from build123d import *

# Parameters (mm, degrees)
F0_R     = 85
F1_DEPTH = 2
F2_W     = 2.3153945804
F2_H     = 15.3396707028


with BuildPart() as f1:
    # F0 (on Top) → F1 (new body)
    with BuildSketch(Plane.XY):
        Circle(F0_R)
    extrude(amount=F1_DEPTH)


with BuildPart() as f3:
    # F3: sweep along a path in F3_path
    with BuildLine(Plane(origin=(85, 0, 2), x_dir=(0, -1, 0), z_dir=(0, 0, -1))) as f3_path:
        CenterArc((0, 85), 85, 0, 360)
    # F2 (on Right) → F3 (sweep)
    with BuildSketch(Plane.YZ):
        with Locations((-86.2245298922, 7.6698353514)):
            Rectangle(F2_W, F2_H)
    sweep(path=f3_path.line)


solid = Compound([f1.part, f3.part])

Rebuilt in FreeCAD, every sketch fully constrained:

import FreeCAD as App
import Part
import Sketcher

V = App.Vector
Q = App.Units.Quantity


def add_polygon(sketch, points):
    """Adds a closed chain of lines whose ends are joined by coincident constraints."""
    first, n = sketch.GeometryCount, len(points)
    for a, b in zip(points, points[1:] + points[:1]):
        sketch.addGeometry(Part.LineSegment(App.Vector(*a, 0), App.Vector(*b, 0)), False)
    for i in range(n):
        sketch.addConstraint(Sketcher.Constraint("Coincident", first + i, 2, first + (i + 1) % n, 1))

doc = App.newDocument("Part")
body = doc.addObject("PartDesign::Body", "Body")

sketch1 = body.newObject("Sketcher::SketchObject", "Sketch")
sketch1.AttachmentSupport = (doc.getObject("XY_Plane"), [""])
sketch1.MapMode = "FlatFace"
sketch1.addGeometry(Part.Circle(V(0, 0, 0), V(0, 0, 1), 85), False)
sketch1.addConstraint([
    Sketcher.Constraint("Coincident", 0, 3, -1, 1),
    Sketcher.Constraint("Diameter", 0, Q("170 mm")),
])
pad1 = body.newObject("PartDesign::Pad", "Pad")
pad1.Profile = sketch1
pad1.Length = 2
body2 = doc.addObject("PartDesign::Body", "Body001")

sketch2 = body2.newObject("Sketcher::SketchObject", "Sketch001")
sketch2.AttachmentSupport = (doc.getObject("YZ_Plane001"), [""])
sketch2.MapMode = "FlatFace"
add_polygon(sketch2, [(-87.382227, 15.339671), (-87.382227, 0), (-85.066833, 0), (-85.066833, 15.339671)])
sketch2.addConstraint([
    Sketcher.Constraint("Vertical", 0),
    Sketcher.Constraint("Horizontal", 1),
    Sketcher.Constraint("Vertical", 2),
    Sketcher.Constraint("Horizontal", 3),
    Sketcher.Constraint("PointOnObject", 0, 2, -1),
    Sketcher.Constraint("DistanceY", 0, 2, 0, 1, Q("15.339671 mm")),
    Sketcher.Constraint("DistanceX", 1, 1, 1, 2, Q("2.315395 mm")),
    Sketcher.Constraint("DistanceX", 0, 2, -1, 1, Q("87.382227 mm")),
])

sketch3 = body2.newObject("Sketcher::SketchObject", "Sketch002")
sketch3.AttachmentSupport = (doc.getObject("XY_Plane001"), [""])
sketch3.MapMode = "FlatFace"
sketch3.AttachmentOffset = App.Placement(V(0, 0, 2), App.Rotation())
sketch3.addGeometry(Part.Circle(V(0, 0, 0), V(0, 0, 1), 85), False)
sketch3.addConstraint([
    Sketcher.Constraint("Coincident", 0, 3, -1, 1),
    Sketcher.Constraint("Diameter", 0, Q("170 mm")),
])
doc.recompute()

additivepipe = body2.newObject("PartDesign::AdditivePipe", "AdditivePipe")
additivepipe.Profile = sketch2
additivepipe.Spine = (sketch3, ["Edge1"])

doc.recompute()
